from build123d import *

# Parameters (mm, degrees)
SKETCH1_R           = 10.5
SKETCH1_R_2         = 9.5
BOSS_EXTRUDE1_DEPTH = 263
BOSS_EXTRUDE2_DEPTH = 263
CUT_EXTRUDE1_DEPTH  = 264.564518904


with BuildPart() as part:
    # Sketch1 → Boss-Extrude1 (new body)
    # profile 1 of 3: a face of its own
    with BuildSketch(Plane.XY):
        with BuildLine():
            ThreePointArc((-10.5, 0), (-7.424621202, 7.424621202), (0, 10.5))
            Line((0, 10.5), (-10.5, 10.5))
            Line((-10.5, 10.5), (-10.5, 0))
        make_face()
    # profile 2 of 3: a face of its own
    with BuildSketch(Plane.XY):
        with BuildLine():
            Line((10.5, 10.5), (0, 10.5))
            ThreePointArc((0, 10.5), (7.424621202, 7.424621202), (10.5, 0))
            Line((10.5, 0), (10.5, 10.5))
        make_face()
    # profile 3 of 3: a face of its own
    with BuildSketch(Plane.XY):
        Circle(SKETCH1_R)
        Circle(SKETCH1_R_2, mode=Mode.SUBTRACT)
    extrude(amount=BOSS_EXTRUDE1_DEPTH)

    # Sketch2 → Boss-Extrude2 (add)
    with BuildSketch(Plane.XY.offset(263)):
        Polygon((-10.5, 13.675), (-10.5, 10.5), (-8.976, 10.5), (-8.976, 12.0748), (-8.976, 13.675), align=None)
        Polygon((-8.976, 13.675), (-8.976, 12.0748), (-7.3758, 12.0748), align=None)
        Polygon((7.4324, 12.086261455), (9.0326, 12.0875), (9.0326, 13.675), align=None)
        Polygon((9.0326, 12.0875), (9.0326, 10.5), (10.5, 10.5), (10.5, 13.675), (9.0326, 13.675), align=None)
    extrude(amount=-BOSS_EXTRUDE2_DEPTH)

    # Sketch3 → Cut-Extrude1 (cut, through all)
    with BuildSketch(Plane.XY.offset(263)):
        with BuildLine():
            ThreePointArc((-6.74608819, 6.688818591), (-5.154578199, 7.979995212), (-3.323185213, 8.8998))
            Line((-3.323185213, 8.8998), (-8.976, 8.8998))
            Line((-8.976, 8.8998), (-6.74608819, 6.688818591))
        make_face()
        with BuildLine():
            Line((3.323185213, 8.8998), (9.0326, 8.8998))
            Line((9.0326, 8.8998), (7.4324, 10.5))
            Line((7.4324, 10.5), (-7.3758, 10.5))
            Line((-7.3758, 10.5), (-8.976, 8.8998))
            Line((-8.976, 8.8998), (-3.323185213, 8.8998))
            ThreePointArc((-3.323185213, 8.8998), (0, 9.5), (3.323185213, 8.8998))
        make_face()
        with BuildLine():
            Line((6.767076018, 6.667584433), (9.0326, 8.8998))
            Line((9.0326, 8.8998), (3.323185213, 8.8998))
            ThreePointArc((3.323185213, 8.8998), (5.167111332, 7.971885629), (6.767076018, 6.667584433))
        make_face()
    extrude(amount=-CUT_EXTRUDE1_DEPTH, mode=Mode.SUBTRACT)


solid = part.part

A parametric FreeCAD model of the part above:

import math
import FreeCAD as App
import Part
import Sketcher
from FreeCAD import Vector
Q = App.Units.Quantity

doc = App.newDocument("Part")
body = doc.addObject("PartDesign::Body", "Body")

# Sketch on XY plane
sketch1 = body.newObject("Sketcher::SketchObject", "Sketch")
sketch1.AttachmentSupport = (doc.getObject("XY_Plane"), [""])
sketch1.MapMode = "FlatFace"
sketch1.addGeometry([
    Part.LineSegment(Vector(-10, 10, 0), Vector(-10, 0, 0)),  # 0
    Part.ArcOfCircle(Part.Circle(Vector(0, 0, 0), Vector(0, 0, 1), 10), math.radians(180), math.radians(360)),  # 1
    Part.LineSegment(Vector(10, 0, 0), Vector(10, 10, 0)),  # 2
    Part.LineSegment(Vector(10, 10, 0), Vector(-10, 10, 0)),  # 3
    Part.Circle(Vector(0, 0, 0), Vector(0, 0, 1), 10),  # 4
], False)
sketch1.addConstraint([
    Sketcher.Constraint("Tangent", 0, 2, 1, 1),
    Sketcher.Constraint("Tangent", 1, 2, 2, 1),
    Sketcher.Constraint("Coincident", 2, 2, 3, 1),
    Sketcher.Constraint("Coincident", 3, 2, 0, 1),
    Sketcher.Constraint("Vertical", 0),
    Sketcher.Constraint("Vertical", 2),
    Sketcher.Constraint("Horizontal", 3),
    Sketcher.Constraint("Coincident", 1, 3, -1, 1),
    Sketcher.Constraint("Coincident", 4, 3, -1, 1),
    Sketcher.Constraint("Diameter", 4, Q("19 mm")),
    Sketcher.Constraint("Radius", 1, Q("10.5 mm")),
    Sketcher.Constraint("DistanceY", 0, 2, 0, 1, Q("10.5 mm")),
])
pad1 = body.newObject("PartDesign::Pad", "Pad")
pad1.Profile = sketch1
pad1.Length = 263

# Sketch on XY plane
sketch2 = body.newObject("Sketcher::SketchObject", "Sketch001")
sketch2.AttachmentSupport = (doc.getObject("XY_Plane"), [""])
sketch2.MapMode = "FlatFace"
sketch2.AttachmentOffset = App.Placement(Vector(0, 0, 263), App.Rotation())
sketch2.addGeometry([
    Part.LineSegment(Vector(-10.5, 13.7, 0), Vector(-10.5, 10.5, 0)),  # 0
    Part.LineSegment(Vector(-10.5, 10.5, 0), Vector(-9, 10.5, 0)),  # 1
    Part.LineSegment(Vector(-9, 10.5, 0), Vector(-9, 12.1, 0)),  # 2
    Part.LineSegment(Vector(-9, 12.1, 0), Vector(-7.4, 12.1, 0)),  # 3
    Part.LineSegment(Vector(-7.4, 12.1, 0), Vector(-9, 13.7, 0)),  # 4
    Part.LineSegment(Vector(-9, 13.7, 0), Vector(-10.5, 13.7, 0)),  # 5
    Part.LineSegment(Vector(7.4, 12.1, 0), Vector(9, 12.1, 0)),  # 6
    Part.LineSegment(Vector(9, 12.1, 0), Vector(9, 10.5, 0)),  # 7
    Part.LineSegment(Vector(9, 10.5, 0), Vector(10.5, 10.5, 0)),  # 8
    Part.LineSegment(Vector(10.5, 10.5, 0), Vector(10.5, 13.7, 0)),  # 9
    Part.LineSegment(Vector(10.5, 13.7, 0), Vector(9, 13.7, 0)),  # 10
    Part.LineSegment(Vector(9, 13.7, 0), Vector(7.4, 12.1, 0)),  # 11
], False)
sketch2.addConstraint([
    Sketcher.Constraint("Coincident", 0, 2, 1, 1),
    Sketcher.Constraint("Coincident", 1, 2, 2, 1),
    Sketcher.Constraint("Coincident", 2, 2, 3, 1),
    Sketcher.Constraint("Coincident", 3, 2, 4, 1),
    Sketcher.Constraint("Coincident", 4, 2, 5, 1),
    Sketcher.Constraint("Coincident", 5, 2, 0, 1),
    Sketcher.Constraint("Coincident", 6, 2, 7, 1),
    Sketcher.Constraint("Coincident", 7, 2, 8, 1),
    Sketcher.Constraint("Coincident", 8, 2, 9, 1),
    Sketcher.Constraint("Coincident", 9, 2, 10, 1),
    Sketcher.Constraint("Coincident", 10, 2, 11, 1),
    Sketcher.Constraint("Coincident", 11, 2, 6, 1),
    Sketcher.Constraint("Vertical", 0),
    Sketcher.Constraint("Horizontal", 1),
    Sketcher.Constraint("Vertical", 2),
    Sketcher.Constraint("Horizontal", 3),
    Sketcher.Constraint("Horizontal", 5),
    Sketcher.Constraint("Vertical", 7),
    Sketcher.Constraint("Horizontal", 8),
    Sketcher.Constraint("Vertical", 9),
    Sketcher.Constraint("Horizontal", 10),
    Sketcher.Constraint("Symmetric", 0, 2, 8, 2, -2),
    Sketcher.Constraint("Horizontal", 5, 2, 9, 2),
    Sketcher.Constraint("Vertical", 2, 2, 4, 2),
    Sketcher.Constraint("Vertical", 7, 2, 10, 2),
    Sketcher.Constraint("Angle", 4, Q("135 deg")),
    Sketcher.Constraint("DistanceX", 1, 1, 1, 2, Q("0.06 in")),
    Sketcher.Constraint("DistanceX", 3, 1, 3, 2, Q("0.063 in")),
    Sketcher.Constraint("DistanceY", 0, 2, 0, 1, Q("0.125 in")),
    Sketcher.Constraint("DistanceY", 7, 2, 7, 1, Q("0.0625 in")),
    Sketcher.Constraint("Distance", 6, Q("0.063 in")),
    Sketcher.Constraint("DistanceX", 3, 2, 6, 2, Q("0.646 in")),
    Sketcher.Constraint("DistanceX", 8, 1, 8, 2, Q("1.4674 mm")),
    Sketcher.Constraint("DistanceY", -1, 1, 0, 2, Q("10.5 mm")),
    Sketcher.Constraint("DistanceY", -1, 1, 11, 2, Q("12.086261 mm")),
])
pad2 = body.newObject("PartDesign::Pad", "Pad001")
pad2.Profile = sketch2
pad2.Length = 263
pad2.Reversed = True

# Sketch on XY plane
sketch3 = body.newObject("Sketcher::SketchObject", "Sketch002")
sketch3.AttachmentSupport = (doc.getObject("XY_Plane"), [""])
sketch3.MapMode = "FlatFace"
sketch3.AttachmentOffset = App.Placement(Vector(0, 0, 263), App.Rotation())
sketch3.addGeometry([
    Part.ArcOfCircle(Part.Circle(Vector(0, 0, 0), Vector(0, 0, 1), 9.5), math.radians(110), math.radians(135)),  # 0
    Part.ArcOfCircle(Part.Circle(Vector(0, 0, 0), Vector(0, 0, 1), 9.5), math.radians(70), math.radians(110)),  # 1
    Part.ArcOfCircle(Part.Circle(Vector(0, 0, 0), Vector(0, 0, 1), 9.5), math.radians(45), math.radians(70)),  # 2
    Part.LineSegment(Vector(6.8, 6.7, 0), Vector(9, 8.9, 0)),  # 3
    Part.LineSegment(Vector(9, 8.9, 0), Vector(7.4, 10.5, 0)),  # 4
    Part.LineSegment(Vector(7.4, 10.5, 0), Vector(-7.4, 10.5, 0)),  # 5
    Part.LineSegment(Vector(-7.4, 10.5, 0), Vector(-9, 8.9, 0)),  # 6
    Part.LineSegment(Vector(-9, 8.9, 0), Vector(-6.7, 6.7, 0)),  # 7
], False)
sketch3.addConstraint([
    Sketcher.Constraint("Tangent", 0, 1, 1, 2),
    Sketcher.Constraint("Tangent", 1, 1, 2, 2),
    Sketcher.Constraint("Coincident", 2, 1, 3, 1),
    Sketcher.Constraint("Coincident", 3, 2, 4, 1),
    Sketcher.Constraint("Coincident", 4, 2, 5, 1),
    Sketcher.Constraint("Coincident", 5, 2, 6, 1),
    Sketcher.Constraint("Coincident", 6, 2, 7, 1),
    Sketcher.Constraint("Coincident", 7, 2, 0, 2),
    Sketcher.Constraint("Horizontal", 5),
    Sketcher.Constraint("Coincident", 0, 3, -1, 1),
    Sketcher.Constraint("Coincident", 2, 3, -1, 1),
    Sketcher.Constraint("Perpendicular", 4, 6),
    Sketcher.Constraint("Horizontal", 0, 1, 1, 1),
    Sketcher.Constraint("Horizontal", 1, 1, 3, 2),
    Sketcher.Constraint("Horizontal", 3, 2, 6, 2),
    Sketcher.Constraint("Equal", 4, 6),
    Sketcher.Constraint("DistanceX", 5, 2, 5, 1, Q("0.583 in")),
    Sketcher.Constraint("Radius", 0, Q("9.5 mm")),
    Sketcher.Constraint("DistanceX", 4, 2, 3, 2, Q("0.063 in")),
    Sketcher.Constraint("DistanceY", -1, 1, 0, 1, Q("8.8998 mm")),
    Sketcher.Constraint("DistanceX", -1, 1, 3, 2, Q("9.0326 mm")),
    Sketcher.Constraint("DistanceX", 7, 2, -1, 1, Q("6.746088 mm")),
    Sketcher.Constraint("DistanceX", 1, 1, 2, 1, Q("3.443891 mm")),
])
pocket1 = body.newObject("PartDesign::Pocket", "Pocket")
pocket1.Profile = sketch3
pocket1.Type = "ThroughAll"

doc.recompute()
